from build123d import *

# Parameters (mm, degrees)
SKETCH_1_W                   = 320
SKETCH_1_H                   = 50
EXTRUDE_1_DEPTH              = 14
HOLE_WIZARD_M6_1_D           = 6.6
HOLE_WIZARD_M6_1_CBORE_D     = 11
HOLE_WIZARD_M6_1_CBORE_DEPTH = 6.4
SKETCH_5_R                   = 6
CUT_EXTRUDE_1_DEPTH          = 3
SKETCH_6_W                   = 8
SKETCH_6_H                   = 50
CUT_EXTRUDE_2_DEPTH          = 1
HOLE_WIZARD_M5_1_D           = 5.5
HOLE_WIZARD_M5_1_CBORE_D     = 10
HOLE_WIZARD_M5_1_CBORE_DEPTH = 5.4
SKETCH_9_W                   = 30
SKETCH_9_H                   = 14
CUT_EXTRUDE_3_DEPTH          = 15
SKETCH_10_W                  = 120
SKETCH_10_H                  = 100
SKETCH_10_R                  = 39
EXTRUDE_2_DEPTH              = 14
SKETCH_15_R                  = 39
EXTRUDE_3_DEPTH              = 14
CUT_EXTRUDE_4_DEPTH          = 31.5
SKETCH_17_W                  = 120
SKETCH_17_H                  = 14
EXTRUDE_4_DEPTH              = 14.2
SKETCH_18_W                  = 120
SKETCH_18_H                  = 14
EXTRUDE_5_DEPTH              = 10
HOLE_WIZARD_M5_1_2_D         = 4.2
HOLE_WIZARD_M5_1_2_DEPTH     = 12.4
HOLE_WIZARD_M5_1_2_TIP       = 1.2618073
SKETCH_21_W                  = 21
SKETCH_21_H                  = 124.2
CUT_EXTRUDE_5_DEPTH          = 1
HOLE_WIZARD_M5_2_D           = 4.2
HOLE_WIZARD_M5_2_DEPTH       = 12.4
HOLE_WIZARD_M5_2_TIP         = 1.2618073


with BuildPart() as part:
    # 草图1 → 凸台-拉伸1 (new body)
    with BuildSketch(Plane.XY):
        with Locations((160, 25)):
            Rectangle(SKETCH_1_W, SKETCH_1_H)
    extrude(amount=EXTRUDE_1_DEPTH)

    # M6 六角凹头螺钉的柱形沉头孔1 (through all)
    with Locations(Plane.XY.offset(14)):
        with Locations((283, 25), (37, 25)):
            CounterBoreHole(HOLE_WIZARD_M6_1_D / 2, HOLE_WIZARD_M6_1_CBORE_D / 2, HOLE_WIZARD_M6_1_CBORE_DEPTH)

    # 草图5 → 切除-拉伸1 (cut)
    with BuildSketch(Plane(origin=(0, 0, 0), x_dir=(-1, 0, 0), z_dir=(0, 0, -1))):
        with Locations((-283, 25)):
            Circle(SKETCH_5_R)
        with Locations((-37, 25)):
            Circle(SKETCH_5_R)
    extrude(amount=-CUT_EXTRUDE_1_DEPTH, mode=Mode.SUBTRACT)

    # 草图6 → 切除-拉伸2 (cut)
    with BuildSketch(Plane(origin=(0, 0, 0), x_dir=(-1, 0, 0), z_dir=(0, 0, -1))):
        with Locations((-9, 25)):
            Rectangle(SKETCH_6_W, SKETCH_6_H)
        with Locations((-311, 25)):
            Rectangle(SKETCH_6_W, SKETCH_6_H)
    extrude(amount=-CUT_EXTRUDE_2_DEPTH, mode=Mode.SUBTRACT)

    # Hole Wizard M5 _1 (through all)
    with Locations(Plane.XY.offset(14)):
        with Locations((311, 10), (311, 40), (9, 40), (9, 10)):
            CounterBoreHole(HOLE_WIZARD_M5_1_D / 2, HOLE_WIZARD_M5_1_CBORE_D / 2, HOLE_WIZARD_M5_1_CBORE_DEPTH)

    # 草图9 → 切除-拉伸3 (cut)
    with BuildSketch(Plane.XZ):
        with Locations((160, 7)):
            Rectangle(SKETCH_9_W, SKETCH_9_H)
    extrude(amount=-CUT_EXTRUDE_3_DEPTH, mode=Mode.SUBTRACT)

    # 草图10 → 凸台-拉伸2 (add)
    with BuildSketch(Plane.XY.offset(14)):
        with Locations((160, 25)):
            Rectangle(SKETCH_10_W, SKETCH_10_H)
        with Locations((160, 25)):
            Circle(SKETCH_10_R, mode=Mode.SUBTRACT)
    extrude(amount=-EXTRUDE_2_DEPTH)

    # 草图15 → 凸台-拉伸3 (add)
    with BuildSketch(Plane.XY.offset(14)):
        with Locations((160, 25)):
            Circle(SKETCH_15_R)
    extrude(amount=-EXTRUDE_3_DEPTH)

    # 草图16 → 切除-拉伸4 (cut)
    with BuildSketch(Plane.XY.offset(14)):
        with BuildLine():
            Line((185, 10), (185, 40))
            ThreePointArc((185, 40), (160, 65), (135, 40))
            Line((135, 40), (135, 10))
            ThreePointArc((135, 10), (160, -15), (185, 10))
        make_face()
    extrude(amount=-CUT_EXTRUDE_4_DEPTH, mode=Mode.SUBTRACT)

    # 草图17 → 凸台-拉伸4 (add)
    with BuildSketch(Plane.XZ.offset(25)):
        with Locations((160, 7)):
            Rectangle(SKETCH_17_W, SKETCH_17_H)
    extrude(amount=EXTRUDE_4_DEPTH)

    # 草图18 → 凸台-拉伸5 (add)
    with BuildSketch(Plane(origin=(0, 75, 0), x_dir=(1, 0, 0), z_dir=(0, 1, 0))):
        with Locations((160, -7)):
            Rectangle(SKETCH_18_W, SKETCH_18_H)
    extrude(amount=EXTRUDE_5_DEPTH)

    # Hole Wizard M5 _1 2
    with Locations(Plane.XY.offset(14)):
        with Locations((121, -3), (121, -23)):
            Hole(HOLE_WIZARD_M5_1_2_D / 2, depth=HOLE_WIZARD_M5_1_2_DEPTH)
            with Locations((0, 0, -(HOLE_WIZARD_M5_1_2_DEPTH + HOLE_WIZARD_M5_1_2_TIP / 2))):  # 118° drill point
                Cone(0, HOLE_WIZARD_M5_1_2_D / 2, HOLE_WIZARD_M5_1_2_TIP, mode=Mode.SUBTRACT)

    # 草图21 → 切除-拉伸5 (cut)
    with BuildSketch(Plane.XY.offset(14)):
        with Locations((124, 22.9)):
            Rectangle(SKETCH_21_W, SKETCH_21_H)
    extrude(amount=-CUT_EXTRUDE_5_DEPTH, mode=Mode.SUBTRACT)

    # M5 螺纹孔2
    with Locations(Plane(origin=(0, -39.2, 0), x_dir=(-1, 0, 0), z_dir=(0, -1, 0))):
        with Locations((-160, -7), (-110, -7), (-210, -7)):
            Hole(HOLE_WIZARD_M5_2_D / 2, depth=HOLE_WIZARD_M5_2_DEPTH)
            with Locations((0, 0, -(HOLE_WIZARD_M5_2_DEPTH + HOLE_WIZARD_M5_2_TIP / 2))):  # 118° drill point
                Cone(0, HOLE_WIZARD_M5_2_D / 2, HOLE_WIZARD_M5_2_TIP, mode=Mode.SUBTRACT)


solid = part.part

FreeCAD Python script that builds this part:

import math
import FreeCAD as App
import Part
import Sketcher
from FreeCAD import Vector


def add_polygon(sketch, points):
    """Adds a closed chain of lines whose ends are joined by coincident constraints."""
    first, n = sketch.GeometryCount, len(points)
    for a, b in zip(points, points[1:] + points[:1]):
        sketch.addGeometry(Part.LineSegment(App.Vector(*a, 0), App.Vector(*b, 0)), False)
    for i in range(n):
        sketch.addConstraint(Sketcher.Constraint("Coincident", first + i, 2, first + (i + 1) % n, 1))

doc = App.newDocument("Part")
body = doc.addObject("PartDesign::Body", "Body")

sketch1 = doc.addObject("Sketcher::SketchObject", "Sketch")
body.addObject(sketch1)
sketch1.AttachmentSupport = (doc.XY_Plane, [""])
sketch1.MapMode = "FlatFace"
add_polygon(sketch1, [(0, 50), (0, 0), (320, 0), (320, 50)])
sketch1.addConstraint(Sketcher.Constraint("Vertical", 0))
sketch1.addConstraint(Sketcher.Constraint("Horizontal", 1))
sketch1.addConstraint(Sketcher.Constraint("Vertical", 2))
sketch1.addConstraint(Sketcher.Constraint("Horizontal", 3))
sketch1.addConstraint(Sketcher.Constraint("Coincident", 0, 2, -1, 1))
sketch1.addConstraint(Sketcher.Constraint("DistanceX", 1, 1, 1, 2, 320.0))
sketch1.addConstraint(Sketcher.Constraint("DistanceY", 0, 2, 0, 1, 50.0))
pad1 = doc.addObject("PartDesign::Pad", "Pad")
body.addObject(pad1)
pad1.Profile = sketch1
pad1.Length = 14

sketch2 = doc.addObject("Sketcher::SketchObject", "Sketch001")
body.addObject(sketch2)
sketch2.AttachmentSupport = (doc.XY_Plane, [""])
sketch2.MapMode = "FlatFace"
sketch2.AttachmentOffset = App.Placement(Vector(0, 0, 14), App.Rotation())
sketch2.addGeometry(Part.Circle(Vector(283, 25, 0), Vector(0, 0, 1), 3.3), False)
sketch2.addGeometry(Part.Circle(Vector(37, 25, 0), Vector(0, 0, 1), 3.3), False)
sketch2.addConstraint(Sketcher.Constraint("Equal", 0, 1))
sketch2.addConstraint(Sketcher.Constraint("Horizontal", 0, 3, 1, 3))
sketch2.addConstraint(Sketcher.Constraint("Diameter", 0, 6.6))
sketch2.addConstraint(Sketcher.Constraint("DistanceX", -1, 1, 0, 3, 283.0))
sketch2.addConstraint(Sketcher.Constraint("DistanceY", -1, 1, 0, 3, 25.0))
sketch2.addConstraint(Sketcher.Constraint("DistanceX", -1, 1, 1, 3, 37.0))
doc.recompute()
hole = doc.addObject("PartDesign::Hole", "Hole")
body.addObject(hole)
hole.Profile = sketch2
hole.ThreadType = "None"
hole.Diameter = 6.6
hole.DepthType = "ThroughAll"
hole.HoleCutType = "Counterbore"
hole.HoleCutDiameter = 11
hole.HoleCutDepth = 6.4

sketch3 = doc.addObject("Sketcher::SketchObject", "Sketch002")
body.addObject(sketch3)
sketch3.AttachmentSupport = (doc.XY_Plane, [""])
sketch3.MapMode = "FlatFace"
sketch3.addGeometry(Part.Circle(Vector(283, 25, 0), Vector(0, 0, 1), 6), False)
sketch3.addGeometry(Part.Circle(Vector(37, 25, 0), Vector(0, 0, 1), 6), False)
sketch3.addConstraint(Sketcher.Constraint("Equal", 0, 1))
sketch3.addConstraint(Sketcher.Constraint("Horizontal", 0, 3, 1, 3))
sketch3.addConstraint(Sketcher.Constraint("Diameter", 0, 12.0))
sketch3.addConstraint(Sketcher.Constraint("DistanceX", -1, 1, 0, 3, 283.0))
sketch3.addConstraint(Sketcher.Constraint("DistanceY", -1, 1, 0, 3, 25.0))
sketch3.addConstraint(Sketcher.Constraint("DistanceX", -1, 1, 1, 3, 37.0))
pocket1 = doc.addObject("PartDesign::Pocket", "Pocket")
body.addObject(pocket1)
pocket1.Profile = sketch3
pocket1.Length = 3
pocket1.Reversed = True

sketch4 = doc.addObject("Sketcher::SketchObject", "Sketch003")
body.addObject(sketch4)
sketch4.AttachmentSupport = (doc.XY_Plane, [""])
sketch4.MapMode = "FlatFace"
add_polygon(sketch4, [(13, 50), (13, 0), (5, 0), (5, 50)])
add_polygon(sketch4, [(315, 50), (315, 0), (307, 0), (307, 50)])
sketch4.addConstraint(Sketcher.Constraint("Vertical", 0))
sketch4.addConstraint(Sketcher.Constraint("Horizontal", 1))
sketch4.addConstraint(Sketcher.Constraint("Vertical", 2))
sketch4.addConstraint(Sketcher.Constraint("Horizontal", 3))
sketch4.addConstraint(Sketcher.Constraint("Vertical", 4))
sketch4.addConstraint(Sketcher.Constraint("Horizontal", 5))
sketch4.addConstraint(Sketcher.Constraint("Vertical", 6))
sketch4.addConstraint(Sketcher.Constraint("Horizontal", 7))
sketch4.addConstraint(Sketcher.Constraint("PointOnObject", 0, 2, -1))
sketch4.addConstraint(Sketcher.Constraint("PointOnObject", 4, 2, -1))
sketch4.addConstraint(Sketcher.Constraint("Horizontal", 3, 2, 6, 2))
sketch4.addConstraint(Sketcher.Constraint("Equal", 3, 5))
sketch4.addConstraint(Sketcher.Constraint("DistanceX", 1, 2, 1, 1, 8.0))
sketch4.addConstraint(Sketcher.Constraint("DistanceY", 0, 2, 0, 1, 50.0))
sketch4.addConstraint(Sketcher.Constraint("DistanceX", -1, 1, 0, 2, 13.0))
sketch4.addConstraint(Sketcher.Constraint("DistanceX", -1, 1, 4, 2, 315.0))
pocket2 = doc.addObject("PartDesign::Pocket", "Pocket001")
body.addObject(pocket2)
pocket2.Profile = sketch4
pocket2.Length = 1
pocket2.Reversed = True

sketch5 = doc.addObject("Sketcher::SketchObject", "Sketch004")
body.addObject(sketch5)
sketch5.AttachmentSupport = (doc.XY_Plane, [""])
sketch5.MapMode = "FlatFace"
sketch5.AttachmentOffset = App.Placement(Vector(0, 0, 14), App.Rotation())
sketch5.addGeometry(Part.Circle(Vector(311, 10, 0), Vector(0, 0, 1), 2.75), False)
sketch5.addGeometry(Part.Circle(Vector(311, 40, 0), Vector(0, 0, 1), 2.75), False)
sketch5.addGeometry(Part.Circle(Vector(9, 40, 0), Vector(0, 0, 1), 2.75), False)
sketch5.addGeometry(Part.Circle(Vector(9, 10, 0), Vector(0, 0, 1), 2.75), False)
sketch5.addConstraint(Sketcher.Constraint("Equal", 0, 1))
sketch5.addConstraint(Sketcher.Constraint("Equal", 1, 2))
sketch5.addConstraint(Sketcher.Constraint("Equal", 2, 3))
sketch5.addConstraint(Sketcher.Constraint("Horizontal", 1, 3, 2, 3))
sketch5.addConstraint(Sketcher.Constraint("Horizontal", 0, 3, 3, 3))
sketch5.addConstraint(Sketcher.Constraint("Vertical", 0, 3, 1, 3))
sketch5.addConstraint(Sketcher.Constraint("Vertical", 2, 3, 3, 3))
sketch5.addConstraint(Sketcher.Constraint("Diameter", 0, 5.5))
sketch5.addConstraint(Sketcher.Constraint("DistanceX", -1, 1, 0, 3, 311.0))
sketch5.addConstraint(Sketcher.Constraint("DistanceY", -1, 1, 0, 3, 10.0))
sketch5.addConstraint(Sketcher.Constraint("DistanceY", -1, 1, 1, 3, 40.0))
sketch5.addConstraint(Sketcher.Constraint("DistanceX", -1, 1, 2, 3, 9.0))
doc.recompute()
hole2 = doc.addObject("PartDesign::Hole", "Hole001")
body.addObject(hole2)
hole2.Profile = sketch5
hole2.ThreadType = "None"
hole2.Diameter = 5.5
hole2.DepthType = "ThroughAll"
hole2.HoleCutType = "Counterbore"
hole2.HoleCutDiameter = 10
hole2.HoleCutDepth = 5.4

sketch6 = doc.addObject("Sketcher::SketchObject", "Sketch005")
body.addObject(sketch6)
sketch6.AttachmentSupport = (doc.XZ_Plane, [""])
sketch6.MapMode = "FlatFace"
add_polygon(sketch6, [(145, 14), (145, 0), (175, 0), (175, 14)])
sketch6.addConstraint(Sketcher.Constraint("Vertical", 0))
sketch6.addConstraint(Sketcher.Constraint("Horizontal", 1))
sketch6.addConstraint(Sketcher.Constraint("Vertical", 2))
sketch6.addConstraint(Sketcher.Constraint("Horizontal", 3))
sketch6.addConstraint(Sketcher.Constraint("PointOnObject", 0, 2, -1))
sketch6.addConstraint(Sketcher.Constraint("DistanceX", 1, 1, 1, 2, 30.0))
sketch6.addConstraint(Sketcher.Constraint("DistanceY", 0, 2, 0, 1, 14.0))
sketch6.addConstraint(Sketcher.Constraint("DistanceX", -1, 1, 0, 2, 145.0))
pocket3 = doc.addObject("PartDesign::Pocket", "Pocket002")
body.addObject(pocket3)
pocket3.Profile = sketch6
pocket3.Length = 15

sketch7 = doc.addObject("Sketcher::SketchObject", "Sketch006")
body.addObject(sketch7)
sketch7.AttachmentSupport = (doc.XY_Plane, [""])
sketch7.MapMode = "FlatFace"
sketch7.AttachmentOffset = App.Placement(Vector(0, 0, 14), App.Rotation())
add_polygon(sketch7, [(100, 75), (100, -25), (220, -25), (220, 75)])
sketch7.addGeometry(Part.Circle(Vector(160, 25, 0), Vector(0, 0, 1), 39), False)
sketch7.addConstraint(Sketcher.Constraint("Vertical", 0))
sketch7.addConstraint(Sketcher.Constraint("Horizontal", 1))
sketch7.addConstraint(Sketcher.Constraint("Vertical", 2))
sketch7.addConstraint(Sketcher.Constraint("Horizontal", 3))
sketch7.addConstraint(Sketcher.Constraint("Diameter", 4, 78.0))
sketch7.addConstraint(Sketcher.Constraint("DistanceX", 1, 1, 1, 2, 120.0))
sketch7.addConstraint(Sketcher.Constraint("DistanceY", 0, 2, 0, 1, 100.0))
sketch7.addConstraint(Sketcher.Constraint("DistanceX", -1, 1, 4, 3, 160.0))
sketch7.addConstraint(Sketcher.Constraint("DistanceY", -1, 1, 4, 3, 25.0))
sketch7.addConstraint(Sketcher.Constraint("DistanceX", -1, 1, 0, 2, 100.0))
sketch7.addConstraint(Sketcher.Constraint("DistanceY", 0, 2, -1, 1, 25.0))
pad2 = doc.addObject("PartDesign::Pad", "Pad001")
body.addObject(pad2)
pad2.Profile = sketch7
pad2.Length = 14
pad2.Reversed = True

sketch8 = doc.addObject("Sketcher::SketchObject", "Sketch007")
body.addObject(sketch8)
sketch8.AttachmentSupport = (doc.XY_Plane, [""])
sketch8.MapMode = "FlatFace"
sketch8.AttachmentOffset = App.Placement(Vector(0, 0, 14), App.Rotation())
sketch8.addGeometry(Part.Circle(Vector(160, 25, 0), Vector(0, 0, 1), 39), False)
sketch8.addConstraint(Sketcher.Constraint("Diameter", 0, 78.0))
sketch8.addConstraint(Sketcher.Constraint("DistanceX", -1, 1, 0, 3, 160.0))
sketch8.addConstraint(Sketcher.Constraint("DistanceY", -1, 1, 0, 3, 25.0))
pad3 = doc.addObject("PartDesign::Pad", "Pad002")
body.addObject(pad3)
pad3.Profile = sketch8
pad3.Length = 14
pad3.Reversed = True

sketch9 = doc.addObject("Sketcher::SketchObject", "Sketch008")
body.addObject(sketch9)
sketch9.AttachmentSupport = (doc.XY_Plane, [""])
sketch9.MapMode = "FlatFace"
sketch9.AttachmentOffset = App.Placement(Vector(0, 0, 14), App.Rotation())
sketch9.addGeometry(Part.LineSegment(Vector(185, 10, 0), Vector(185, 40, 0)), False)
sketch9.addGeometry(Part.ArcOfCircle(Part.Circle(Vector(160, 40, 0), Vector(0, 0, 1), 25), math.radians(0), math.radians(180)), False)
sketch9.addGeometry(Part.LineSegment(Vector(135, 40, 0), Vector(135, 10, 0)), False)
sketch9.addGeometry(Part.ArcOfCircle(Part.Circle(Vector(160, 10, 0), Vector(0, 0, 1), 25), math.radians(180), math.radians(360)), False)
sketch9.addConstraint(Sketcher.Constraint("Tangent", 0, 2, 1, 1))
sketch9.addConstraint(Sketcher.Constraint("Tangent", 1, 2, 2, 1))
sketch9.addConstraint(Sketcher.Constraint("Tangent", 2, 2, 3, 1))
sketch9.addConstraint(Sketcher.Constraint("Tangent", 3, 2, 0, 1))
sketch9.addConstraint(Sketcher.Constraint("Vertical", 0))
sketch9.addConstraint(Sketcher.Constraint("Vertical", 2))
sketch9.addConstraint(Sketcher.Constraint("Radius", 1, 25.0))
sketch9.addConstraint(Sketcher.Constraint("DistanceY", 0, 1, 0, 2, 30.0))
sketch9.addConstraint(Sketcher.Constraint("DistanceX", -1, 1, 1, 3, 160.0))
sketch9.addConstraint(Sketcher.Constraint("DistanceY", -1, 1, 1, 3, 40.0))
pocket4 = doc.addObject("PartDesign::Pocket", "Pocket003")
body.addObject(pocket4)
pocket4.Profile = sketch9
pocket4.Length = 31.5

sketch10 = doc.addObject("Sketcher::SketchObject", "Sketch009")
body.addObject(sketch10)
sketch10.AttachmentSupport = (doc.XZ_Plane, [""])
sketch10.MapMode = "FlatFace"
sketch10.AttachmentOffset = App.Placement(Vector(0, 0, 25), App.Rotation())
add_polygon(sketch10, [(100, 14), (100, 0), (220, 0), (220, 14)])
sketch10.addConstraint(Sketcher.Constraint("Vertical", 0))
sketch10.addConstraint(Sketcher.Constraint("Horizontal", 1))
sketch10.addConstraint(Sketcher.Constraint("Vertical", 2))
sketch10.addConstraint(Sketcher.Constraint("Horizontal", 3))
sketch10.addConstraint(Sketcher.Constraint("PointOnObject", 0, 2, -1))
sketch10.addConstraint(Sketcher.Constraint("DistanceX", 1, 1, 1, 2, 120.0))
sketch10.addConstraint(Sketcher.Constraint("DistanceY", 0, 2, 0, 1, 14.0))
sketch10.addConstraint(Sketcher.Constraint("DistanceX", -1, 1, 0, 2, 100.0))
pad4 = doc.addObject("PartDesign::Pad", "Pad003")
body.addObject(pad4)
pad4.Profile = sketch10
pad4.Length = 14.2

sketch11 = doc.addObject("Sketcher::SketchObject", "Sketch010")
body.addObject(sketch11)
sketch11.AttachmentSupport = (doc.XZ_Plane, [""])
sketch11.MapMode = "FlatFace"
sketch11.AttachmentOffset = App.Placement(Vector(0, 0, -75), App.Rotation())
add_polygon(sketch11, [(100, 0), (100, 14), (220, 14), (220, 0)])
sketch11.addConstraint(Sketcher.Constraint("Vertical", 0))
sketch11.addConstraint(Sketcher.Constraint("Horizontal", 1))
sketch11.addConstraint(Sketcher.Constraint("Vertical", 2))
sketch11.addConstraint(Sketcher.Constraint("Horizontal", 3))
sketch11.addConstraint(Sketcher.Constraint("PointOnObject", 2, 2, -1))
sketch11.addConstraint(Sketcher.Constraint("DistanceX", 1, 1, 1, 2, 120.0))
sketch11.addConstraint(Sketcher.Constraint("DistanceY", 0, 1, 0, 2, 14.0))
sketch11.addConstraint(Sketcher.Constraint("DistanceX", -1, 1, 0, 2, 100.0))
pad5 = doc.addObject("PartDesign::Pad", "Pad004")
body.addObject(pad5)
pad5.Profile = sketch11
pad5.Length = 10
pad5.Reversed = True

sketch12 = doc.addObject("Sketcher::SketchObject", "Sketch011")
body.addObject(sketch12)
sketch12.AttachmentSupport = (doc.XY_Plane, [""])
sketch12.MapMode = "FlatFace"
sketch12.AttachmentOffset = App.Placement(Vector(0, 0, 14), App.Rotation())
sketch12.addGeometry(Part.Circle(Vector(121, -3, 0), Vector(0, 0, 1), 2.1), False)
sketch12.addGeometry(Part.Circle(Vector(121, -23, 0), Vector(0, 0, 1), 2.1), False)
sketch12.addConstraint(Sketcher.Constraint("Equal", 0, 1))
sketch12.addConstraint(Sketcher.Constraint("Vertical", 0, 3, 1, 3))
sketch12.addConstraint(Sketcher.Constraint("Diameter", 0, 4.2))
sketch12.addConstraint(Sketcher.Constraint("DistanceX", -1, 1, 0, 3, 121.0))
sketch12.addConstraint(Sketcher.Constraint("DistanceY", 0, 3, -1, 1, 3.0))
sketch12.addConstraint(Sketcher.Constraint("DistanceY", 1, 3, -1, 1, 23.0))
doc.recompute()
hole3 = doc.addObject("PartDesign::Hole", "Hole002")
body.addObject(hole3)
hole3.Profile = sketch12
hole3.ThreadType = "None"
hole3.Diameter = 4.2
hole3.DepthType = "Dimension"
hole3.Depth = 12.4
hole3.DrillPoint = "Angled"
hole3.DrillPointAngle = 118

sketch13 = doc.addObject("Sketcher::SketchObject", "Sketch012")
body.addObject(sketch13)
sketch13.AttachmentSupport = (doc.XY_Plane, [""])
sketch13.MapMode = "FlatFace"
sketch13.AttachmentOffset = App.Placement(Vector(0, 0, 14), App.Rotation())
add_polygon(sketch13, [(113.5, 85), (113.5, -39.2), (134.5, -39.2), (134.5, 85)])
sketch13.addConstraint(Sketcher.Constraint("Vertical", 0))
sketch13.addConstraint(Sketcher.Constraint("Horizontal", 1))
sketch13.addConstraint(Sketcher.Constraint("Vertical", 2))
sketch13.addConstraint(Sketcher.Constraint("Horizontal", 3))
sketch13.addConstraint(Sketcher.Constraint("DistanceX", 1, 1, 1, 2, 21.0))
sketch13.addConstraint(Sketcher.Constraint("DistanceY", 0, 2, 0, 1, 124.2))
sketch13.addConstraint(Sketcher.Constraint("DistanceY", -1, 1, 2, 2, 85.0))
sketch13.addConstraint(Sketcher.Constraint("DistanceX", -1, 1, 0, 2, 113.5))
pocket5 = doc.addObject("PartDesign::Pocket", "Pocket004")
body.addObject(pocket5)
pocket5.Profile = sketch13
pocket5.Length = 1

sketch14 = doc.addObject("Sketcher::SketchObject", "Sketch013")
body.addObject(sketch14)
sketch14.AttachmentSupport = (doc.XZ_Plane, [""])
sketch14.MapMode = "FlatFace"
sketch14.AttachmentOffset = App.Placement(Vector(0, 0, 39.2), App.Rotation())
sketch14.addGeometry(Part.Circle(Vector(160, 7, 0), Vector(0, 0, 1), 2.1), False)
sketch14.addGeometry(Part.Circle(Vector(110, 7, 0), Vector(0, 0, 1), 2.1), False)
sketch14.addGeometry(Part.Circle(Vector(210, 7, 0), Vector(0, 0, 1), 2.1), False)
sketch14.addConstraint(Sketcher.Constraint("Equal", 0, 1))
sketch14.addConstraint(Sketcher.Constraint("Equal", 1, 2))
sketch14.addConstraint(Sketcher.Constraint("Horizontal", 0, 3, 1, 3))
sketch14.addConstraint(Sketcher.Constraint("Horizontal", 1, 3, 2, 3))
sketch14.addConstraint(Sketcher.Constraint("Diameter", 0, 4.2))
sketch14.addConstraint(Sketcher.Constraint("DistanceX", -1, 1, 0, 3, 160.0))
sketch14.addConstraint(Sketcher.Constraint("DistanceY", -1, 1, 0, 3, 7.0))
sketch14.addConstraint(Sketcher.Constraint("DistanceX", -1, 1, 1, 3, 110.0))
sketch14.addConstraint(Sketcher.Constraint("DistanceX", -1, 1, 2, 3, 210.0))
doc.recompute()
hole4 = doc.addObject("PartDesign::Hole", "Hole003")
body.addObject(hole4)
hole4.Profile = sketch14
hole4.ThreadType = "None"
hole4.Diameter = 4.2
hole4.DepthType = "Dimension"
hole4.Depth = 12.4
hole4.DrillPoint = "Angled"
hole4.DrillPointAngle = 118

doc.recompute()
